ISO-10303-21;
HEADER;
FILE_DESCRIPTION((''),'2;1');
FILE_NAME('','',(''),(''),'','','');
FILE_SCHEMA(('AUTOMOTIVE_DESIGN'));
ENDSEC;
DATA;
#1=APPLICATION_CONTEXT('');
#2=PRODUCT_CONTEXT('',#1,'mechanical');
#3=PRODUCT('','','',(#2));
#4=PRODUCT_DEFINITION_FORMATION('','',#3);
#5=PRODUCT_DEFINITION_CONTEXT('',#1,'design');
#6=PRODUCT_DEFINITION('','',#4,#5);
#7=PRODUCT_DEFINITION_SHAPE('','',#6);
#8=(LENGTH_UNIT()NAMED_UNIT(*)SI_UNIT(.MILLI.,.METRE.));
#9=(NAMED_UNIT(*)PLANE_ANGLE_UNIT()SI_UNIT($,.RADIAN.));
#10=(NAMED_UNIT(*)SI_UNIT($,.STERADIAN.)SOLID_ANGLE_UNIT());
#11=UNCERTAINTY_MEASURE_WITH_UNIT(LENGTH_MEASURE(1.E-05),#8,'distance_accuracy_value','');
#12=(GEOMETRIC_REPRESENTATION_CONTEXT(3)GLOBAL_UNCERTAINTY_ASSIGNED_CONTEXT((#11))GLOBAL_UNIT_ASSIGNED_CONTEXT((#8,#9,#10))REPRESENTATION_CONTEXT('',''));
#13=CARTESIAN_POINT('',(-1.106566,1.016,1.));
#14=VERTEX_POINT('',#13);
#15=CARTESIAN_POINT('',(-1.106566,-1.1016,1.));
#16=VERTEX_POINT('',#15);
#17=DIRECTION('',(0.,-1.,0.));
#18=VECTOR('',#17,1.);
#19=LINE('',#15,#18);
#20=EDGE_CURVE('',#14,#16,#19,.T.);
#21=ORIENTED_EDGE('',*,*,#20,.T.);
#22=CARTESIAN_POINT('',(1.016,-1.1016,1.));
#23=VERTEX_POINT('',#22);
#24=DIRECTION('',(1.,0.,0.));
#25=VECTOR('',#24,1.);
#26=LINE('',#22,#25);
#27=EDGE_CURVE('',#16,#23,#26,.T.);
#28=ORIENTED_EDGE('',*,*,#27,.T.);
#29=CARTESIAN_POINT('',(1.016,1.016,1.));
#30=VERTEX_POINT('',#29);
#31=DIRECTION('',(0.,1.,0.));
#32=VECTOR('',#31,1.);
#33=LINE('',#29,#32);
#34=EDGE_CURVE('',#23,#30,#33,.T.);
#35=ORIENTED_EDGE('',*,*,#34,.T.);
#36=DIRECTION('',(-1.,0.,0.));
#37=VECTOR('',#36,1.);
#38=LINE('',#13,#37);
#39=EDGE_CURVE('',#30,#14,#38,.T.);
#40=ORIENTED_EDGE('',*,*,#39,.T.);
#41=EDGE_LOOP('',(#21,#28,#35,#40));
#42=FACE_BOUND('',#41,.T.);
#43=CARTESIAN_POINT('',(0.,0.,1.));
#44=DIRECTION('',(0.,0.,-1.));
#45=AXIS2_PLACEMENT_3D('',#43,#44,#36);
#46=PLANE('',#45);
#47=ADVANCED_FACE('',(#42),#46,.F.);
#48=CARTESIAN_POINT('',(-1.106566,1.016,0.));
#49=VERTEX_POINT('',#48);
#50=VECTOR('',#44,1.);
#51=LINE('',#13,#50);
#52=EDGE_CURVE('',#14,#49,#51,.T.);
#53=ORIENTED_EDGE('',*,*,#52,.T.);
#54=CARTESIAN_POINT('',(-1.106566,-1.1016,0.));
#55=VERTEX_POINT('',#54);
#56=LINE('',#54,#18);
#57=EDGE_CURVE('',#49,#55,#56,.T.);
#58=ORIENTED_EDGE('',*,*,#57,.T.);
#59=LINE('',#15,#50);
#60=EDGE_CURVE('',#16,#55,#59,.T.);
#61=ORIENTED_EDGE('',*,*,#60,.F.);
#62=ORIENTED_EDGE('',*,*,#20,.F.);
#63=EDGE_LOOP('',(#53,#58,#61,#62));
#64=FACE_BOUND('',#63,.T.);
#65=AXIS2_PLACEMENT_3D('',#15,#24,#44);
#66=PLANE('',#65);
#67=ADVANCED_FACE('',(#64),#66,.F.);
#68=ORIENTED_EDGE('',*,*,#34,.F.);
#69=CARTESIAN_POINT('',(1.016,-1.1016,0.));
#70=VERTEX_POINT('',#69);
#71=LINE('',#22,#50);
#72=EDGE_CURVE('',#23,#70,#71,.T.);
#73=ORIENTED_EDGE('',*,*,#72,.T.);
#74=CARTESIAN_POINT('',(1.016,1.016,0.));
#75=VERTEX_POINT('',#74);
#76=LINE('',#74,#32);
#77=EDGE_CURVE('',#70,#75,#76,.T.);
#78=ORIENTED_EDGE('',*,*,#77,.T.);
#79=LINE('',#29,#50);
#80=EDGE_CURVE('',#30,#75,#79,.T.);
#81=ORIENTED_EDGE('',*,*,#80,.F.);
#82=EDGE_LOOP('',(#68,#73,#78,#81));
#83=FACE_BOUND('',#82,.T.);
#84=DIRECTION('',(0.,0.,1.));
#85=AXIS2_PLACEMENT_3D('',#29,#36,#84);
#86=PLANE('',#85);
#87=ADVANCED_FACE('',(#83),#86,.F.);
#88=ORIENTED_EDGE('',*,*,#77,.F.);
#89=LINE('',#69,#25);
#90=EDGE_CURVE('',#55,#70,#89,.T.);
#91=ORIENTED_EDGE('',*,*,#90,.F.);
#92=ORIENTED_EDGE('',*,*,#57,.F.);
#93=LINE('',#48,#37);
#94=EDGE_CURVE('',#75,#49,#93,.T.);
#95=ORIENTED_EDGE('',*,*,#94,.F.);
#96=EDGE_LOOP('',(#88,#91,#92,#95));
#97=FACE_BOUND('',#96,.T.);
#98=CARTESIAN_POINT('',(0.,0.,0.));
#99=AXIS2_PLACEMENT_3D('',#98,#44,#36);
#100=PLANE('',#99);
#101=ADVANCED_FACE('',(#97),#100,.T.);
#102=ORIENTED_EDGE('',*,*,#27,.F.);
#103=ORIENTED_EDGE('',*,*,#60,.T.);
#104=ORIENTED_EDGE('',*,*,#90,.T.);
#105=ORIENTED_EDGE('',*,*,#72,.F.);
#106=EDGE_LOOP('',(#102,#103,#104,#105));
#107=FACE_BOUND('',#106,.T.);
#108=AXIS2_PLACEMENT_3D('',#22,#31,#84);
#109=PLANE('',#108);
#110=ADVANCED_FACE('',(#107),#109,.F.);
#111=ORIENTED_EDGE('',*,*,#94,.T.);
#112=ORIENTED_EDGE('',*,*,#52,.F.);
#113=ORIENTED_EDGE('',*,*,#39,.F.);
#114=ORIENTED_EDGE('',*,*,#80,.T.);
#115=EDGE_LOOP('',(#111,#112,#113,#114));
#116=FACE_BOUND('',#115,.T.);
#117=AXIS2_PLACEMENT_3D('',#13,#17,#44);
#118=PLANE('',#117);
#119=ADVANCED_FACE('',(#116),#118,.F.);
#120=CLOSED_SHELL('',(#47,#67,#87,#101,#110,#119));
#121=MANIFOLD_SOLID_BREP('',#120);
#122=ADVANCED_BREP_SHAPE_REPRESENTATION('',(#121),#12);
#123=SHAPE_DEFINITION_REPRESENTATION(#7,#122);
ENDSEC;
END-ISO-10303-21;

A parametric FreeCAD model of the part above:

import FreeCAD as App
import Part
import Sketcher
from FreeCAD import Vector
Q = App.Units.Quantity


def add_polygon(sketch, points):
    """Adds a closed chain of lines whose ends are joined by coincident constraints."""
    first, n = sketch.GeometryCount, len(points)
    for a, b in zip(points, points[1:] + points[:1]):
        sketch.addGeometry(Part.LineSegment(App.Vector(*a, 0), App.Vector(*b, 0)), False)
    for i in range(n):
        sketch.addConstraint(Sketcher.Constraint("Coincident", first + i, 2, first + (i + 1) % n, 1))

doc = App.newDocument("Part")
params = doc.addObject("Spreadsheet::Sheet", "Params")
for row, (alias, value) in enumerate([
    ("pad1_length", "1 mm"),
], start=1):
    params.set(f"A{row}", alias)
    params.set(f"B{row}", "=" + value)
    params.setAlias(f"B{row}", alias)

body = doc.addObject("PartDesign::Body", "Body")

sketch1 = doc.addObject("Sketcher::SketchObject", "Sketch")
body.addObject(sketch1)
sketch1.AttachmentSupport = (doc.XY_Plane, [""])
sketch1.MapMode = "FlatFace"
add_polygon(sketch1, [(-1.1, 1), (-1.1, -1.1), (1, -1.1), (1, 1)])
sketch1.addConstraint(Sketcher.Constraint("Vertical", 0))
sketch1.addConstraint(Sketcher.Constraint("Horizontal", 1))
sketch1.addConstraint(Sketcher.Constraint("Vertical", 2))
sketch1.addConstraint(Sketcher.Constraint("Horizontal", 3))
sketch1.addConstraint(Sketcher.Constraint("DistanceY", 0, 2, 0, 1, Q("2.1176 mm")))
sketch1.addConstraint(Sketcher.Constraint("DistanceX", -1, 1, 1, 2, Q("1.016 mm")))
sketch1.addConstraint(Sketcher.Constraint("DistanceY", -1, 1, 2, 2, Q("1.016 mm")))
sketch1.addConstraint(Sketcher.Constraint("DistanceX", 1, 1, 1, 2, Q("2.122566 mm")))
pad1 = doc.addObject("PartDesign::Pad", "Pad")
body.addObject(pad1)
pad1.Profile = sketch1
pad1.setExpression("Length", "Params.pad1_length")

doc.recompute()
